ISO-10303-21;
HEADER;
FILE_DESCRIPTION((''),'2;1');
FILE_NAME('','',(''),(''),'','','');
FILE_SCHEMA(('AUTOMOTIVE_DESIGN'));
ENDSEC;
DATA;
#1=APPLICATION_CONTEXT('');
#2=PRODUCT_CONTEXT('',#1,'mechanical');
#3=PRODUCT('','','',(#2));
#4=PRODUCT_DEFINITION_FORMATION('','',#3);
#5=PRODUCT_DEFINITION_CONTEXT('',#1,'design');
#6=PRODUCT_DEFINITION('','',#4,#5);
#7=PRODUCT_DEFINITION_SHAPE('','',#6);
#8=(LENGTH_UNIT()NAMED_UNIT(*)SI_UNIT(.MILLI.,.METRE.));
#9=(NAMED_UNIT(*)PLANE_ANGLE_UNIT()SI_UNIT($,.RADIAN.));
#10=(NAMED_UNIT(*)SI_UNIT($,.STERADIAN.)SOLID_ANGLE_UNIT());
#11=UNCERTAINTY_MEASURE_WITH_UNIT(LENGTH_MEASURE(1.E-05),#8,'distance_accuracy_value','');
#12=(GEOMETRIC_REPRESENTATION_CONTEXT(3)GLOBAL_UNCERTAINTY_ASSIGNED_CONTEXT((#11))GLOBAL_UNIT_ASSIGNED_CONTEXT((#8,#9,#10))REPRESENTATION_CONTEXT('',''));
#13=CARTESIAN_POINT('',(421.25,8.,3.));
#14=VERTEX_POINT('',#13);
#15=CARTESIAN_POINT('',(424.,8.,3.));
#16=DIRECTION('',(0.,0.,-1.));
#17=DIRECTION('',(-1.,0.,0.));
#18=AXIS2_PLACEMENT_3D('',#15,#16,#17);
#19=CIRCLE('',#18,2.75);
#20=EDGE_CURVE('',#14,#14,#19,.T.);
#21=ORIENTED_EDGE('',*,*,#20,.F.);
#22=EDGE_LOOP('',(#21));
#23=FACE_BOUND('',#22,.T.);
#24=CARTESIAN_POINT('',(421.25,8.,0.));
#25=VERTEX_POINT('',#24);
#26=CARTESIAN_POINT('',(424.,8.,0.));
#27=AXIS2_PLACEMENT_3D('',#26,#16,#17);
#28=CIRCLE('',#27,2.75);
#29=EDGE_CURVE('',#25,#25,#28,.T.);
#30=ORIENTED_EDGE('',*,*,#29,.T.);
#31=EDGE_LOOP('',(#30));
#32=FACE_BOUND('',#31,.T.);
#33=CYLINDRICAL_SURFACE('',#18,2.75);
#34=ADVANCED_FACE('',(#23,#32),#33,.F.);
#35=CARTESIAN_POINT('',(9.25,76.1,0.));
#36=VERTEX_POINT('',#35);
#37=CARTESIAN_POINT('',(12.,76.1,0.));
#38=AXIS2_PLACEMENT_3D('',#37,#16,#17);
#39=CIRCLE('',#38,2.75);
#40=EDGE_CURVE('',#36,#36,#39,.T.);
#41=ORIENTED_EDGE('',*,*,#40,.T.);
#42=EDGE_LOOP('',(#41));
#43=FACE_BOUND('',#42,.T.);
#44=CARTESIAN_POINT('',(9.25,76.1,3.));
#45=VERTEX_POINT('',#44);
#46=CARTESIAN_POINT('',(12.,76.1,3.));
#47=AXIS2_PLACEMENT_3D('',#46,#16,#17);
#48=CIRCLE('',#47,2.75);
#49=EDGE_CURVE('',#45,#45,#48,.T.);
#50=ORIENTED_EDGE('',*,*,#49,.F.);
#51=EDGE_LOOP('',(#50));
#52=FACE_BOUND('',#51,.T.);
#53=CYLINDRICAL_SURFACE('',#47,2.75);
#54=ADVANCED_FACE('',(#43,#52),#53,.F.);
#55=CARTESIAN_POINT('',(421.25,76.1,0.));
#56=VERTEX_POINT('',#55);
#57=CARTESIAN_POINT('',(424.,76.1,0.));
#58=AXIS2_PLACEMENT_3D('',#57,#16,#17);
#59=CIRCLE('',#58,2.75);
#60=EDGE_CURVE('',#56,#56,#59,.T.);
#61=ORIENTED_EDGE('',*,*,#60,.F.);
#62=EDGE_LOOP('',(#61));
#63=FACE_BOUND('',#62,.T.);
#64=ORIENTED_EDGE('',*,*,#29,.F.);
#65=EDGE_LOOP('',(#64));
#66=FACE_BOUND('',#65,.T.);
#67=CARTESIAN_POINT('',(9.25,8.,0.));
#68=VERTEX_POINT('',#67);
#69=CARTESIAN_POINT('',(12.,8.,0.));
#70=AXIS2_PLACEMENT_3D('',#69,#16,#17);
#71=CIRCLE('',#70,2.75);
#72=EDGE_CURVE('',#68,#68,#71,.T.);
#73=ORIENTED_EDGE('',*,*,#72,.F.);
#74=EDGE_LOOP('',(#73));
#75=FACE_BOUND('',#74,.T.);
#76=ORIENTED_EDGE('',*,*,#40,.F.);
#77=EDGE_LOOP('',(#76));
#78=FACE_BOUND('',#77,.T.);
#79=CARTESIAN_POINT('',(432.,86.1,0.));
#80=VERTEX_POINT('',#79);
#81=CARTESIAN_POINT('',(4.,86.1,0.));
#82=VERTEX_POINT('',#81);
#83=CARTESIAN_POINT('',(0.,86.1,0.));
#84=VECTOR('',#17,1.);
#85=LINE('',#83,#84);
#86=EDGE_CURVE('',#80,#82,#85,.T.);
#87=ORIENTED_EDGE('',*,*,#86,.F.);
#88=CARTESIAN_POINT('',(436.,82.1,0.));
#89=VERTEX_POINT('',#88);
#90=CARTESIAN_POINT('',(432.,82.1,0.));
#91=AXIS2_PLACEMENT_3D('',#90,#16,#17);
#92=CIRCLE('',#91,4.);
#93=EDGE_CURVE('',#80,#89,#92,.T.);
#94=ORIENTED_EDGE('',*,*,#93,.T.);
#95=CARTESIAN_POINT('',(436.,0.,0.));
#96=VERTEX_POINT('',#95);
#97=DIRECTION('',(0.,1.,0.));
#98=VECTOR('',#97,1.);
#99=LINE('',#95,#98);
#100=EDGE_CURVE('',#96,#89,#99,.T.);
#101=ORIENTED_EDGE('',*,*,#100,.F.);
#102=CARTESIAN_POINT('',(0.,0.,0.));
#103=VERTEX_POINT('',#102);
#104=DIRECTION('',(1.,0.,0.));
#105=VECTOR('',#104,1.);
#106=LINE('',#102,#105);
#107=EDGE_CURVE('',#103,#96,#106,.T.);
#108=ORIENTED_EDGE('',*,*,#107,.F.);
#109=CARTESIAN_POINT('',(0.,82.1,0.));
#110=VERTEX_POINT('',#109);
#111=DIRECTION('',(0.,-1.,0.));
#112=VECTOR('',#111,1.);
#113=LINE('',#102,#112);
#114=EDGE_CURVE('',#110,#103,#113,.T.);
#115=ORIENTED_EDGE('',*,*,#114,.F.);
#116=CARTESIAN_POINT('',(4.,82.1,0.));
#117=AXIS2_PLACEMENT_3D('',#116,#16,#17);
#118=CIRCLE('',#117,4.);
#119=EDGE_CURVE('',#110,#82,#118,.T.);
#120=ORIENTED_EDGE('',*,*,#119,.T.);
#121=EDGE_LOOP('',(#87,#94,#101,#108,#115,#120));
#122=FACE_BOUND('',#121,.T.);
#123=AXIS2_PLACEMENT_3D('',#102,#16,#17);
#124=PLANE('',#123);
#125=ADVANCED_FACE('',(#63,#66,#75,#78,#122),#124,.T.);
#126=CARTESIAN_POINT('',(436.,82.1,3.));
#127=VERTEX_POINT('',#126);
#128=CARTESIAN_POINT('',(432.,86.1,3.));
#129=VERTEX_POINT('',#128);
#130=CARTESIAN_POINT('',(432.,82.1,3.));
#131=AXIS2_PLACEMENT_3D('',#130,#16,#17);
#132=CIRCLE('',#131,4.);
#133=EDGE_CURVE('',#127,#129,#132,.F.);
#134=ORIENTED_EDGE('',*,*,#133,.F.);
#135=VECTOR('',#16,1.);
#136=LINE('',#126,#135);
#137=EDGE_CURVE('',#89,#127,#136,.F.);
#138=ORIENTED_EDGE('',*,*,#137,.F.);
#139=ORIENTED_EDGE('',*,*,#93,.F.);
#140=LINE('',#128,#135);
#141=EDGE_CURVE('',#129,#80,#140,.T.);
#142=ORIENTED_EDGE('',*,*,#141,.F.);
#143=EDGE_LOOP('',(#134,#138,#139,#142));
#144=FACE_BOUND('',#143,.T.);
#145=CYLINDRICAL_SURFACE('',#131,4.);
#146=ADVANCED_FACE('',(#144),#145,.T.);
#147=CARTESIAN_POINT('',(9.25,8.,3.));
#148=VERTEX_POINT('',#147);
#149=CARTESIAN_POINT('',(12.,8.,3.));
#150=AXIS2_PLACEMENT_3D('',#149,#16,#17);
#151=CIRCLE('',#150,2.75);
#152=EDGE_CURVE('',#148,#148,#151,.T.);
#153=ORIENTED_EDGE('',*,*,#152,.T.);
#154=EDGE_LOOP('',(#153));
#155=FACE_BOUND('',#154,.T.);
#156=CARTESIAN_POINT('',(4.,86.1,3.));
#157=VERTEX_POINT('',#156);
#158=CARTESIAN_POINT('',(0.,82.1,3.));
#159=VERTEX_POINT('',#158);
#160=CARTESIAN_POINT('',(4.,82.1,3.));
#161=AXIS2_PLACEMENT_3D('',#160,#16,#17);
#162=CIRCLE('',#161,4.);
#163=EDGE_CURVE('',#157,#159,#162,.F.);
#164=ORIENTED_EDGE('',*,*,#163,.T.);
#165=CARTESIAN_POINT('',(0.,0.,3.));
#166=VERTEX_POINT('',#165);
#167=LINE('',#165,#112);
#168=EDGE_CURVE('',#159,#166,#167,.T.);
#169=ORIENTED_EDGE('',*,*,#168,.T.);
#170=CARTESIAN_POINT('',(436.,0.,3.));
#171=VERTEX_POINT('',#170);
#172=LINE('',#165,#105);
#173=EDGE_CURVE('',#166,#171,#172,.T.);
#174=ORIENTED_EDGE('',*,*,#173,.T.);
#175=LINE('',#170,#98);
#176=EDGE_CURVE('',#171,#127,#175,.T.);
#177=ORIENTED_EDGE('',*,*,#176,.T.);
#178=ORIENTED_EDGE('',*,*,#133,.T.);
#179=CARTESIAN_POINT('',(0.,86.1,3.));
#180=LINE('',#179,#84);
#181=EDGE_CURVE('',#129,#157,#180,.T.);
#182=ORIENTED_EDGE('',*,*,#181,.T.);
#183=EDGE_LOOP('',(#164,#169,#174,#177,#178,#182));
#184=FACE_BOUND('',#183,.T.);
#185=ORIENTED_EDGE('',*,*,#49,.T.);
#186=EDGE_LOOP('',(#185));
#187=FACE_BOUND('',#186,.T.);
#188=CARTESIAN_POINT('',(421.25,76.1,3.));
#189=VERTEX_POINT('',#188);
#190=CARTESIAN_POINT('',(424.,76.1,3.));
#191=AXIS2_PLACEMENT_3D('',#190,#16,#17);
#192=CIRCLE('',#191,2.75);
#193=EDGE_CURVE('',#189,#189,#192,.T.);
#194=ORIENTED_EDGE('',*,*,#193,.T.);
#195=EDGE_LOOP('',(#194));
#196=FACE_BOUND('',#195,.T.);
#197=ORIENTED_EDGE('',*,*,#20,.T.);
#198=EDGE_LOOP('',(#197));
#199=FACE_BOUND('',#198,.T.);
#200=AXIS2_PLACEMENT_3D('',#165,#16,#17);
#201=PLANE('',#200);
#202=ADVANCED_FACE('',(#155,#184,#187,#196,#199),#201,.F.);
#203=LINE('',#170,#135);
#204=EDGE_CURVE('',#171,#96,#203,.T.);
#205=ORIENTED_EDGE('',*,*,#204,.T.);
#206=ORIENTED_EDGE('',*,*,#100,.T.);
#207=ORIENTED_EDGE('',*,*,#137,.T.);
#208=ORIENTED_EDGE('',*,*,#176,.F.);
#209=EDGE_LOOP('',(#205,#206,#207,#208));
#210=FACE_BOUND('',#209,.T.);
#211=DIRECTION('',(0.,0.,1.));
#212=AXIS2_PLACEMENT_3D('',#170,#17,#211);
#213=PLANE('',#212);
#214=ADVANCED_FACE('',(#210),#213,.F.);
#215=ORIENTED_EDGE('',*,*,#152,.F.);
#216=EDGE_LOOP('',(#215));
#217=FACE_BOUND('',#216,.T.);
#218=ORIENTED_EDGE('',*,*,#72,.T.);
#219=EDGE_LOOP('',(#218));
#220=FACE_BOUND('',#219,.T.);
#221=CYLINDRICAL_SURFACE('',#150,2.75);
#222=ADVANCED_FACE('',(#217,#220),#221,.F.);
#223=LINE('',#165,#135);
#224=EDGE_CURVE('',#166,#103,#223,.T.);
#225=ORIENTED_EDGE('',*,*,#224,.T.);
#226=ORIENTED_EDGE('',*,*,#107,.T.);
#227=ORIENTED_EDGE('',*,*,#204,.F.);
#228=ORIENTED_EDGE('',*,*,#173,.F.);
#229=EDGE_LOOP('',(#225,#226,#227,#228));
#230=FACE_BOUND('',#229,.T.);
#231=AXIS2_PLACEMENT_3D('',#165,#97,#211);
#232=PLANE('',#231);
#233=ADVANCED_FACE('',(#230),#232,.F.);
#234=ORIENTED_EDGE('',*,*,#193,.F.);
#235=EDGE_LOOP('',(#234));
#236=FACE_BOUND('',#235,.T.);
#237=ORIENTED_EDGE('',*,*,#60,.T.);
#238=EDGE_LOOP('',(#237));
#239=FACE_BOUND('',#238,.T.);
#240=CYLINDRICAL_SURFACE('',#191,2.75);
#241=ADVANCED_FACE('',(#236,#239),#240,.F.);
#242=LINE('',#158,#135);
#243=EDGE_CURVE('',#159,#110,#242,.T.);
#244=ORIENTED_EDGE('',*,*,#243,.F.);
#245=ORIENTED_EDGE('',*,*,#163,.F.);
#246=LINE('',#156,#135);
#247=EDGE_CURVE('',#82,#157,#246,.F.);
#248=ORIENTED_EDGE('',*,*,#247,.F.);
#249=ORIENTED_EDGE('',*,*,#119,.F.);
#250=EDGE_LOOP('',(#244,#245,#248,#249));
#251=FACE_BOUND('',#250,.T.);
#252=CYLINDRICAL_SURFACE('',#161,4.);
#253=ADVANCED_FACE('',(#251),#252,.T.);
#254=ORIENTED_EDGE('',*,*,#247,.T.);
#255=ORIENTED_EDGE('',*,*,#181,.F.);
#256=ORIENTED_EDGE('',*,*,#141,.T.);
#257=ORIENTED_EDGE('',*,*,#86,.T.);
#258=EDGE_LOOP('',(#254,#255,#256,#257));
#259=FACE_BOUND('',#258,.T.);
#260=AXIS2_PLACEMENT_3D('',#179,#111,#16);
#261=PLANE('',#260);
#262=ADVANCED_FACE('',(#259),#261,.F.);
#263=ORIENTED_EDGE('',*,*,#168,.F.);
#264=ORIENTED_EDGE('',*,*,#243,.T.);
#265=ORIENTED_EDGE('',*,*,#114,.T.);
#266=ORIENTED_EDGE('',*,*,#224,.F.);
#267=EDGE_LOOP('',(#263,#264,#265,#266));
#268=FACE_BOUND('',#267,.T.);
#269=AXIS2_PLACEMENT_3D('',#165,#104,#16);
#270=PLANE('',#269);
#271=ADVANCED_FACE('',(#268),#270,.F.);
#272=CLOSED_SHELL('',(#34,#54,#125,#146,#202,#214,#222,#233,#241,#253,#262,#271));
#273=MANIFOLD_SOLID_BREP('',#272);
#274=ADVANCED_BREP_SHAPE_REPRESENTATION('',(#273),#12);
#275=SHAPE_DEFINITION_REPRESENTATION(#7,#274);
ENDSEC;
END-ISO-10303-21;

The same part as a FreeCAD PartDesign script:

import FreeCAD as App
import Part
import Sketcher
from FreeCAD import Vector


def edges_at(feature, points):
    """Names of the edges that pass closest to the given points."""
    edges = feature.Shape.Edges
    near = lambda p: min(range(len(edges)), key=lambda i: edges[i].distToShape(Part.Vertex(*p))[0])
    return sorted({f"Edge{near(p) + 1}" for p in points})


def add_polygon(sketch, points):
    """Adds a closed chain of lines whose ends are joined by coincident constraints."""
    first, n = sketch.GeometryCount, len(points)
    for a, b in zip(points, points[1:] + points[:1]):
        sketch.addGeometry(Part.LineSegment(App.Vector(*a, 0), App.Vector(*b, 0)), False)
    for i in range(n):
        sketch.addConstraint(Sketcher.Constraint("Coincident", first + i, 2, first + (i + 1) % n, 1))

doc = App.newDocument("Part")
body = doc.addObject("PartDesign::Body", "Body")

sketch1 = doc.addObject("Sketcher::SketchObject", "Sketch")
body.addObject(sketch1)
sketch1.AttachmentSupport = (doc.XY_Plane, [""])
sketch1.MapMode = "FlatFace"
add_polygon(sketch1, [(0, 86.1), (0, 0), (436, 0), (436, 86.1)])
sketch1.addConstraint([
    Sketcher.Constraint("Vertical", 0),
    Sketcher.Constraint("Horizontal", 1),
    Sketcher.Constraint("Vertical", 2),
    Sketcher.Constraint("Horizontal", 3),
    Sketcher.Constraint("Coincident", 0, 2, -1, 1),
    Sketcher.Constraint("DistanceX", 1, 1, 1, 2, 436.0),
    Sketcher.Constraint("DistanceY", 0, 2, 0, 1, 86.1),
])
pad1 = doc.addObject("PartDesign::Pad", "Pad")
body.addObject(pad1)
pad1.Profile = sketch1
pad1.Length = 3

sketch2 = doc.addObject("Sketcher::SketchObject", "Sketch001")
body.addObject(sketch2)
sketch2.AttachmentSupport = (doc.XY_Plane, [""])
sketch2.MapMode = "FlatFace"
sketch2.addGeometry([
    Part.Circle(Vector(424, 76.1, 0), Vector(0, 0, 1), 2.75),
    Part.Circle(Vector(424, 8, 0), Vector(0, 0, 1), 2.75),
    Part.Circle(Vector(12, 8, 0), Vector(0, 0, 1), 2.75),
    Part.Circle(Vector(12, 76.1, 0), Vector(0, 0, 1), 2.75),
], False)
sketch2.addConstraint([
    Sketcher.Constraint("Equal", 0, 1),
    Sketcher.Constraint("Equal", 1, 2),
    Sketcher.Constraint("Equal", 2, 3),
    Sketcher.Constraint("Horizontal", 1, 3, 2, 3),
    Sketcher.Constraint("Horizontal", 0, 3, 3, 3),
    Sketcher.Constraint("Vertical", 0, 3, 1, 3),
    Sketcher.Constraint("Vertical", 2, 3, 3, 3),
    Sketcher.Constraint("Diameter", 0, 5.5),
    Sketcher.Constraint("DistanceX", -1, 1, 0, 3, 424.0),
    Sketcher.Constraint("DistanceY", -1, 1, 1, 3, 8.0),
    Sketcher.Constraint("DistanceX", -1, 1, 2, 3, 12.0),
    Sketcher.Constraint("DistanceY", -1, 1, 0, 3, 76.1),
])
pocket1 = doc.addObject("PartDesign::Pocket", "Pocket")
body.addObject(pocket1)
pocket1.Profile = sketch2
pocket1.Type = "ThroughAll"
pocket1.Reversed = True
doc.recompute()

fillet = doc.addObject("PartDesign::Fillet", "Fillet")
body.addObject(fillet)
fillet.Base = (pocket1, edges_at(pocket1, [(0, 86.1, 1.5), (436, 86.1, 1.5)]))
fillet.Radius = 4

doc.recompute()
